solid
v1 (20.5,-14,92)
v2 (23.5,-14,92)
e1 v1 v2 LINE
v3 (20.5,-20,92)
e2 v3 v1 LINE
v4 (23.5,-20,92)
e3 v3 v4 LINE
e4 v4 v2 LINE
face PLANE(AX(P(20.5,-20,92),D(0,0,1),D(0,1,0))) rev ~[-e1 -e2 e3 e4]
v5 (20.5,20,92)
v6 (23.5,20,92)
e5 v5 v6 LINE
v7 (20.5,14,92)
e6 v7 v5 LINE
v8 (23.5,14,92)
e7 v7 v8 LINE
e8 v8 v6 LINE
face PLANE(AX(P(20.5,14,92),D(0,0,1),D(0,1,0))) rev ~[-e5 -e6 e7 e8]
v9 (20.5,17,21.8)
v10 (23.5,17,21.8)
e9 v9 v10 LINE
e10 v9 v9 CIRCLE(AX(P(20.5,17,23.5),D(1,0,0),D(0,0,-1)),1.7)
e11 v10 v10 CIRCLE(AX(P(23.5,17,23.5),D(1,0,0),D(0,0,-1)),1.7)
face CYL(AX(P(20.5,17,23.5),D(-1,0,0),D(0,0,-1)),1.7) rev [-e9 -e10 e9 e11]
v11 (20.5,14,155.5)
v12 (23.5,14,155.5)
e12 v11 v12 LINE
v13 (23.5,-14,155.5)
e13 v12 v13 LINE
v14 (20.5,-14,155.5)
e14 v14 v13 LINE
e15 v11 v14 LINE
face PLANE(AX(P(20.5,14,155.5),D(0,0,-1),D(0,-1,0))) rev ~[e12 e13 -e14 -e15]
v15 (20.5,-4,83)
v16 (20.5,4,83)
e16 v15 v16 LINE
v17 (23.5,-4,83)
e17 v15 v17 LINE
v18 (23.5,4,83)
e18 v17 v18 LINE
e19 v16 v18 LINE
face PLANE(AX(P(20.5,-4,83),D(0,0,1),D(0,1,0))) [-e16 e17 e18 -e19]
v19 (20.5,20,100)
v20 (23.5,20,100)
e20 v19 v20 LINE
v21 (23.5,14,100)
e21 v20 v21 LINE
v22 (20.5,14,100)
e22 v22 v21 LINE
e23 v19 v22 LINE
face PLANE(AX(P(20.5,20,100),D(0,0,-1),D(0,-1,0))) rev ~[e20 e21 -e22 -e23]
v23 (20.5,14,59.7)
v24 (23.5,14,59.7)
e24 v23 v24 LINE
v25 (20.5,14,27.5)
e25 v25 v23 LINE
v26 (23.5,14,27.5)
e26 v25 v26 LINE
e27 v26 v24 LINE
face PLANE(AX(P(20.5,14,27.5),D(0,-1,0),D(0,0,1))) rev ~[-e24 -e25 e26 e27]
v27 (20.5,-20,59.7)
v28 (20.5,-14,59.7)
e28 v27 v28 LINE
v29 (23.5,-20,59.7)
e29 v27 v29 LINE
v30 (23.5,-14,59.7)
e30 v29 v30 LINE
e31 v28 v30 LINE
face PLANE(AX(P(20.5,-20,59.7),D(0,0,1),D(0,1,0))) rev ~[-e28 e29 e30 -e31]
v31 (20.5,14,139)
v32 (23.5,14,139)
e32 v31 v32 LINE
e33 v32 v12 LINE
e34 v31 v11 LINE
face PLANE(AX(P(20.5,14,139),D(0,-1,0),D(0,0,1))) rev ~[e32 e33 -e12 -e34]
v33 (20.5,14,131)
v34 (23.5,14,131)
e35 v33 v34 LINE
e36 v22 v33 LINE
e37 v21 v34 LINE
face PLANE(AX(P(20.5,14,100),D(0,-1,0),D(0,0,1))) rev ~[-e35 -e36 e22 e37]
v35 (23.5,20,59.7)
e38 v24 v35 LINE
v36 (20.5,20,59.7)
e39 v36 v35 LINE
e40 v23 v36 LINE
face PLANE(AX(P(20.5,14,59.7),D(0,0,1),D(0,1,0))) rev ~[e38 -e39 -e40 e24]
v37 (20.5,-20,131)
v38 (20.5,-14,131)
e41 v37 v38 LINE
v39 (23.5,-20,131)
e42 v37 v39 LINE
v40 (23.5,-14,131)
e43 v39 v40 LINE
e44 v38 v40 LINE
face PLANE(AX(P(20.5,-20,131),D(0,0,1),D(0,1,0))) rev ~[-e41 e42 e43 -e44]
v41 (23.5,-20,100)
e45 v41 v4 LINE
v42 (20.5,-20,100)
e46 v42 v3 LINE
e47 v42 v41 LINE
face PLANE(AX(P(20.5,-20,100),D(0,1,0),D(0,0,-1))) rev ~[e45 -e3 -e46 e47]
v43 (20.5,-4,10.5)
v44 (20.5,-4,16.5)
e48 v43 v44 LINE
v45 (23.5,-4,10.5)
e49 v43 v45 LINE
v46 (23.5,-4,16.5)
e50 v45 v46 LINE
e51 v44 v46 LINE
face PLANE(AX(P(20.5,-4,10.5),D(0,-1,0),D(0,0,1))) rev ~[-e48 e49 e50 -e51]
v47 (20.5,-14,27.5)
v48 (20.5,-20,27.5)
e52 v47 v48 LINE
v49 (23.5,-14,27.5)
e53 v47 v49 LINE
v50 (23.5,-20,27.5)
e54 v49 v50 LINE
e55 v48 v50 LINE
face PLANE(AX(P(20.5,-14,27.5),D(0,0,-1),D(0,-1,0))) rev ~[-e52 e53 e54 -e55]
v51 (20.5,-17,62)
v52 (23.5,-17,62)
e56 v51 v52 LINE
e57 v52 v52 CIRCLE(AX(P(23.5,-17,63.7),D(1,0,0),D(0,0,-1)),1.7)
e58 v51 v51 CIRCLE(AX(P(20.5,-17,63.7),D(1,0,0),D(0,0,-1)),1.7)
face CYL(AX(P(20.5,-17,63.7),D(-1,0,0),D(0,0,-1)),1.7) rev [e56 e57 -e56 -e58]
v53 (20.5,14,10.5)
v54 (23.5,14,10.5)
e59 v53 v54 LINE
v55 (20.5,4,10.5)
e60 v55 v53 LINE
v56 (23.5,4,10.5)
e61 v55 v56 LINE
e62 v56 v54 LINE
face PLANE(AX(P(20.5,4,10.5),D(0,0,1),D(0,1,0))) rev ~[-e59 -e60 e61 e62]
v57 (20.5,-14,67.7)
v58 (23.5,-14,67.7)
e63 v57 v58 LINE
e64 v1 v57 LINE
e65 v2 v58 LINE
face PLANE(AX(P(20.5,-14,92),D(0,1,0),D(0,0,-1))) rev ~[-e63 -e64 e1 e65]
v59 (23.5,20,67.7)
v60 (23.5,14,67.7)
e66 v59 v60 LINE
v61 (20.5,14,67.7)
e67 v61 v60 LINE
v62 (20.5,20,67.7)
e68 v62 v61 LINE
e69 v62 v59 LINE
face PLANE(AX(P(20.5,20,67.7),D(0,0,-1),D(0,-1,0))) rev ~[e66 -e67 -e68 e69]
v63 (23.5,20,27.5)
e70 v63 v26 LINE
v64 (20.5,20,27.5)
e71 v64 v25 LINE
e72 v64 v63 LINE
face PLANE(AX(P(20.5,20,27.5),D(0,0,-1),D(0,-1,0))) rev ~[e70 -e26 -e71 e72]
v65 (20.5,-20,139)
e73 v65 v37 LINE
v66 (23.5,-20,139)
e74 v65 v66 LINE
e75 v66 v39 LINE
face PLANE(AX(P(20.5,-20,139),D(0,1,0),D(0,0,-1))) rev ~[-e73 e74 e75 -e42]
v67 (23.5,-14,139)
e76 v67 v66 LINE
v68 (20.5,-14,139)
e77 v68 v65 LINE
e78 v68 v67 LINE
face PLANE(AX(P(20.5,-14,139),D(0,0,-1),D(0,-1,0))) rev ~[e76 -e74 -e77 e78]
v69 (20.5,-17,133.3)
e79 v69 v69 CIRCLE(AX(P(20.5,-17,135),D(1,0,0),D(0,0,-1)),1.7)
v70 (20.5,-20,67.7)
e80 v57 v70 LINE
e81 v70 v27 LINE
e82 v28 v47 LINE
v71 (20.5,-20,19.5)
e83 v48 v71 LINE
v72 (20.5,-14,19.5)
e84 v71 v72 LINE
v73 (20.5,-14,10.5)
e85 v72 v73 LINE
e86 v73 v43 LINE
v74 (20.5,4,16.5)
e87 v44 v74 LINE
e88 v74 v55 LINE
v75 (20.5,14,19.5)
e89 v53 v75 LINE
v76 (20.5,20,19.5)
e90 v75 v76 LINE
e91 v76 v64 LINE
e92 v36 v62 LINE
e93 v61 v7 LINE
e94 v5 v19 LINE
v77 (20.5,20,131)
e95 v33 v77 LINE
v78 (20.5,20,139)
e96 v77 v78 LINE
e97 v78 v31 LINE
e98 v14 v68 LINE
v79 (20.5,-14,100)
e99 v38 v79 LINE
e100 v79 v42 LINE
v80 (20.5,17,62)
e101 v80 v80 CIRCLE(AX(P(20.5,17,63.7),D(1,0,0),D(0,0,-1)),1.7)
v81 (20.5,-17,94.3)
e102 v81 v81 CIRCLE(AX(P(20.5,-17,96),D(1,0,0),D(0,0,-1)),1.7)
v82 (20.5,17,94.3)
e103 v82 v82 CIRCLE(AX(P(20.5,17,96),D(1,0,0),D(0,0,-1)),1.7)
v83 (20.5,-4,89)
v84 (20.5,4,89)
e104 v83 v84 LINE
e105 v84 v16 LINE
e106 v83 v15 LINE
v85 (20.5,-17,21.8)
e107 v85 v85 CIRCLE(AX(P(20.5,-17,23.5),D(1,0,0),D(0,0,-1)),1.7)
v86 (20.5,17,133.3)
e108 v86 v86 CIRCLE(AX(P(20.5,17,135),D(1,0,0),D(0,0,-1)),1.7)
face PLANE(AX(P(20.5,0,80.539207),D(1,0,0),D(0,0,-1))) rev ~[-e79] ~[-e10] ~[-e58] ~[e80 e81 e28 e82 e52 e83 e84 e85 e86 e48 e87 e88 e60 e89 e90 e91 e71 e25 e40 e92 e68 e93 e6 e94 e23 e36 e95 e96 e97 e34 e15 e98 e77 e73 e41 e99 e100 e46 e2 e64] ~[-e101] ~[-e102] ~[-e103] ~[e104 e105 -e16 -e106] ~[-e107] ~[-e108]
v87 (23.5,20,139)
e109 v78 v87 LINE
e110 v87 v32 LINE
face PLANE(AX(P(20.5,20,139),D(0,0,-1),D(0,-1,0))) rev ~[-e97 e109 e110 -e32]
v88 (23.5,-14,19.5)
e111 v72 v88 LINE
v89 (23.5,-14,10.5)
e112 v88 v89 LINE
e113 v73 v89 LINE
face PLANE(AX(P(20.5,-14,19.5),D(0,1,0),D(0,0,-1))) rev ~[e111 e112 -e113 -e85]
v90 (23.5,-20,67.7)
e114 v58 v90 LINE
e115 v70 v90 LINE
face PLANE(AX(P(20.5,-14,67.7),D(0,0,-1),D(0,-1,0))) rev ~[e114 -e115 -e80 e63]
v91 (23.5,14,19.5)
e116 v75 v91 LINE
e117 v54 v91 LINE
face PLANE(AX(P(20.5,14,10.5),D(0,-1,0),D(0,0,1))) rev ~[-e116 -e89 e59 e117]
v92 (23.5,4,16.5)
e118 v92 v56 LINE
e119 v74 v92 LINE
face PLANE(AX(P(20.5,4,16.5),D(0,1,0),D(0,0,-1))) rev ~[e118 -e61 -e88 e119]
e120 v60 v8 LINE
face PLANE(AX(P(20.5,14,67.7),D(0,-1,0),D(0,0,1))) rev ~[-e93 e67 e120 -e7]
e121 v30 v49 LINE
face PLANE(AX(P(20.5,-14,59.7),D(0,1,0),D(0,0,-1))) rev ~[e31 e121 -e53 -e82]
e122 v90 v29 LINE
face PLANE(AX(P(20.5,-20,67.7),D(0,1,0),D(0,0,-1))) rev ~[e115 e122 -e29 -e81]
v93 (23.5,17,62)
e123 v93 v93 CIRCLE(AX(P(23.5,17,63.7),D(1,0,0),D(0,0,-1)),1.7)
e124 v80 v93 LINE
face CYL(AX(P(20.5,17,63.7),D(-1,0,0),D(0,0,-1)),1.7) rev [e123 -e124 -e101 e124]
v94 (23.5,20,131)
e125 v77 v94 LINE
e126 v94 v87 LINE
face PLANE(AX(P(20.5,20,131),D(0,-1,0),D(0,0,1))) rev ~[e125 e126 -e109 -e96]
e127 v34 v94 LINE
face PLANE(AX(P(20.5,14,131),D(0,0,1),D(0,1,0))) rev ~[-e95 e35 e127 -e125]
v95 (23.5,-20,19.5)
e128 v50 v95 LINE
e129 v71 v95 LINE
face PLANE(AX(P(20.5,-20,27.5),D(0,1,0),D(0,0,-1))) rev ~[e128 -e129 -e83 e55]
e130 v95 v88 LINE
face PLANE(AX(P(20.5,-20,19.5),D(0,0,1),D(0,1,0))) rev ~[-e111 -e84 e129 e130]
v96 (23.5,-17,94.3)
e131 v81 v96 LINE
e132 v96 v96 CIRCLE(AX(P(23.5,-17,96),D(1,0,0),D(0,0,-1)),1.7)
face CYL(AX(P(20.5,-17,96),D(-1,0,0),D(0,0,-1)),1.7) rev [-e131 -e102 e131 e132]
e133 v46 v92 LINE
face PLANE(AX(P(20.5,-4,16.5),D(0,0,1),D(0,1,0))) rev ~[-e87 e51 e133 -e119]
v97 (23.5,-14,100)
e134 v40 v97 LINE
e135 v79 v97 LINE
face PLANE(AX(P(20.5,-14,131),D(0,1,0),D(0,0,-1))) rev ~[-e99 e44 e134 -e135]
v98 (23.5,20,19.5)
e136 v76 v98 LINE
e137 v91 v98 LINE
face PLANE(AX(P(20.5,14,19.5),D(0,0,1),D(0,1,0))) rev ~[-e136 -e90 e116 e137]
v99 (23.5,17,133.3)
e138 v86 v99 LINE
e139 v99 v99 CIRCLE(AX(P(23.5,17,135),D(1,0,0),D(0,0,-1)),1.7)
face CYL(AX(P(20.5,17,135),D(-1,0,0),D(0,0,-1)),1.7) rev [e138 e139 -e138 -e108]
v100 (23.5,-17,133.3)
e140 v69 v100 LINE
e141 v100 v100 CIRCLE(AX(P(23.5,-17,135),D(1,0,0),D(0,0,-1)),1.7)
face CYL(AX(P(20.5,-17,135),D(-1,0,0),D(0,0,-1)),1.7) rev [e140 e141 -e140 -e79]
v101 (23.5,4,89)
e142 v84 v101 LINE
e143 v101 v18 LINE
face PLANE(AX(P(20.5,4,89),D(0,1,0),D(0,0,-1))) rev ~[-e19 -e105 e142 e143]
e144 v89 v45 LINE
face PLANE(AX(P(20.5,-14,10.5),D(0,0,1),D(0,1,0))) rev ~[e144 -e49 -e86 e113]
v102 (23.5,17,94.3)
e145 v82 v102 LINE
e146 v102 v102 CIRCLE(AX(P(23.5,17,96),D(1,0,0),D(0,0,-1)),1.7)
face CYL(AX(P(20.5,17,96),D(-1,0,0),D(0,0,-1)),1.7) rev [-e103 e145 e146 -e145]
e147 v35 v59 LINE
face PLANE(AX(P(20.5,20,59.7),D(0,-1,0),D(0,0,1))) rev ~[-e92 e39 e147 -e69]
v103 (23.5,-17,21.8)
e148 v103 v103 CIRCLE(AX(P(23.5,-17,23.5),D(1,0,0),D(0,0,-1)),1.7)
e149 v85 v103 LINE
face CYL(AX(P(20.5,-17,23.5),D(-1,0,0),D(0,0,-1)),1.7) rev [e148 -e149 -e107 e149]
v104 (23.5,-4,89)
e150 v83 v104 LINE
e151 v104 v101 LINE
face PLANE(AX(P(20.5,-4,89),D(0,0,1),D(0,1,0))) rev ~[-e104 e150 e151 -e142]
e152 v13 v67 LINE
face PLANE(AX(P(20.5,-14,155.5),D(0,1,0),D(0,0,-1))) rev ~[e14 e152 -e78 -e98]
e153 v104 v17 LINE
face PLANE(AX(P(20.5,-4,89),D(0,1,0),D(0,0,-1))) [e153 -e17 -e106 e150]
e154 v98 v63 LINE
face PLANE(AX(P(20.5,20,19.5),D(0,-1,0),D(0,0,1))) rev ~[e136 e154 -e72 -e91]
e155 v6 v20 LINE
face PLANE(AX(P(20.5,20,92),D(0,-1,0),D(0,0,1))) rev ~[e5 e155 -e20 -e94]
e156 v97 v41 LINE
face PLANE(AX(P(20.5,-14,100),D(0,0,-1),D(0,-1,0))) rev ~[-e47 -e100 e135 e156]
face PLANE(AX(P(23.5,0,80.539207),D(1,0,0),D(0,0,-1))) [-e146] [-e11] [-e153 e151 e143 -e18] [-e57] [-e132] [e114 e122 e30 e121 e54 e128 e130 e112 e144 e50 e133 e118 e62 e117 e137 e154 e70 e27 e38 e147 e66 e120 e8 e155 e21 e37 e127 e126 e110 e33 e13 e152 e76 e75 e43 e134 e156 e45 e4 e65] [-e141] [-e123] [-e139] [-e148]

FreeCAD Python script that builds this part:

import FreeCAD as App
import Part
import Sketcher
from FreeCAD import Vector
Q = App.Units.Quantity

doc = App.newDocument("Part")
params = doc.addObject("Spreadsheet::Sheet", "Params")
for row, (alias, value) in enumerate([
    ("sketch1_diameter", "3.4 mm"),
    ("sketch1_width", "6 mm"),
    ("sketch1_width2", "28 mm"),
    ("sketch1_width3", "10 mm"),
    ("sketch1_height", "9 mm"),
    ("pad1_length", "3 mm"),
], start=1):
    params.set(f"A{row}", alias)
    params.set(f"B{row}", "=" + value)
    params.setAlias(f"B{row}", alias)

body = doc.addObject("PartDesign::Body", "Body")

# Sketch on YZ plane
sketch1 = body.newObject("Sketcher::SketchObject", "Sketch")
sketch1.AttachmentSupport = (doc.getObject("YZ_Plane"), [""])
sketch1.MapMode = "FlatFace"
sketch1.AttachmentOffset = App.Placement(Vector(0, 0, 20.5), App.Rotation())
sketch1.addGeometry([
    Part.LineSegment(Vector(14, 10.5, 0), Vector(14, 19.5, 0)),  # 0
    Part.LineSegment(Vector(14, 19.5, 0), Vector(20, 19.5, 0)),  # 1
    Part.LineSegment(Vector(20, 19.5, 0), Vector(20, 27.5, 0)),  # 2
    Part.LineSegment(Vector(20, 27.5, 0), Vector(14, 27.5, 0)),  # 3
    Part.LineSegment(Vector(14, 27.5, 0), Vector(14, 59.7, 0)),  # 4
    Part.LineSegment(Vector(14, 59.7, 0), Vector(20, 59.7, 0)),  # 5
    Part.LineSegment(Vector(20, 59.7, 0), Vector(20, 67.7, 0)),  # 6
    Part.LineSegment(Vector(20, 67.7, 0), Vector(14, 67.7, 0)),  # 7
    Part.LineSegment(Vector(14, 67.7, 0), Vector(14, 92, 0)),  # 8
    Part.LineSegment(Vector(14, 92, 0), Vector(20, 92, 0)),  # 9
    Part.LineSegment(Vector(20, 92, 0), Vector(20, 100, 0)),  # 10
    Part.LineSegment(Vector(20, 100, 0), Vector(14, 100, 0)),  # 11
    Part.LineSegment(Vector(14, 100, 0), Vector(14, 131, 0)),  # 12
    Part.LineSegment(Vector(14, 131, 0), Vector(20, 131, 0)),  # 13
    Part.LineSegment(Vector(20, 131, 0), Vector(20, 139, 0)),  # 14
    Part.LineSegment(Vector(20, 139, 0), Vector(14, 139, 0)),  # 15
    Part.LineSegment(Vector(14, 139, 0), Vector(14, 155.5, 0)),  # 16
    Part.LineSegment(Vector(14, 155.5, 0), Vector(-14, 155.5, 0)),  # 17
    Part.LineSegment(Vector(-14, 155.5, 0), Vector(-14, 139, 0)),  # 18
    Part.LineSegment(Vector(-14, 139, 0), Vector(-20, 139, 0)),  # 19
    Part.LineSegment(Vector(-20, 139, 0), Vector(-20, 131, 0)),  # 20
    Part.LineSegment(Vector(-20, 131, 0), Vector(-14, 131, 0)),  # 21
    Part.LineSegment(Vector(-14, 131, 0), Vector(-14, 100, 0)),  # 22
    Part.LineSegment(Vector(-14, 100, 0), Vector(-20, 100, 0)),  # 23
    Part.LineSegment(Vector(-20, 100, 0), Vector(-20, 92, 0)),  # 24
    Part.LineSegment(Vector(-20, 92, 0), Vector(-14, 92, 0)),  # 25
    Part.LineSegment(Vector(-14, 92, 0), Vector(-14, 67.7, 0)),  # 26
    Part.LineSegment(Vector(-14, 67.7, 0), Vector(-20, 67.7, 0)),  # 27
    Part.LineSegment(Vector(-20, 67.7, 0), Vector(-20, 59.7, 0)),  # 28
    Part.LineSegment(Vector(-20, 59.7, 0), Vector(-14, 59.7, 0)),  # 29
    Part.LineSegment(Vector(-14, 59.7, 0), Vector(-14, 27.5, 0)),  # 30
    Part.LineSegment(Vector(-14, 27.5, 0), Vector(-20, 27.5, 0)),  # 31
    Part.LineSegment(Vector(-20, 27.5, 0), Vector(-20, 19.5, 0)),  # 32
    Part.LineSegment(Vector(-20, 19.5, 0), Vector(-14, 19.5, 0)),  # 33
    Part.LineSegment(Vector(-14, 19.5, 0), Vector(-14, 10.5, 0)),  # 34
    Part.LineSegment(Vector(-14, 10.5, 0), Vector(-4, 10.5, 0)),  # 35
    Part.LineSegment(Vector(-4, 10.5, 0), Vector(-4, 16.5, 0)),  # 36
    Part.LineSegment(Vector(-4, 16.5, 0), Vector(4, 16.5, 0)),  # 37
    Part.LineSegment(Vector(4, 16.5, 0), Vector(4, 10.5, 0)),  # 38
    Part.LineSegment(Vector(4, 10.5, 0), Vector(14, 10.5, 0)),  # 39
    Part.Circle(Vector(-17, 135, 0), Vector(0, 0, 1), 1.7),  # 40
    Part.Circle(Vector(-17, 96, 0), Vector(0, 0, 1), 1.7),  # 41
    Part.Circle(Vector(-17, 63.7, 0), Vector(0, 0, 1), 1.7),  # 42
    Part.Circle(Vector(-17, 23.5, 0), Vector(0, 0, 1), 1.7),  # 43
    Part.LineSegment(Vector(-4, 83, 0), Vector(-4, 89, 0)),  # 44
    Part.LineSegment(Vector(-4, 89, 0), Vector(4, 89, 0)),  # 45
    Part.LineSegment(Vector(4, 89, 0), Vector(4, 83, 0)),  # 46
    Part.LineSegment(Vector(4, 83, 0), Vector(-4, 83, 0)),  # 47
    Part.Circle(Vector(17, 135, 0), Vector(0, 0, 1), 1.7),  # 48
    Part.Circle(Vector(17, 96, 0), Vector(0, 0, 1), 1.7),  # 49
    Part.Circle(Vector(17, 63.7, 0), Vector(0, 0, 1), 1.7),  # 50
    Part.Circle(Vector(17, 23.5, 0), Vector(0, 0, 1), 1.7),  # 51
], False)
sketch1.addConstraint([
    Sketcher.Constraint("Coincident", 0, 2, 1, 1),
    Sketcher.Constraint("Coincident", 1, 2, 2, 1),
    Sketcher.Constraint("Coincident", 2, 2, 3, 1),
    Sketcher.Constraint("Coincident", 3, 2, 4, 1),
    Sketcher.Constraint("Coincident", 4, 2, 5, 1),
    Sketcher.Constraint("Coincident", 5, 2, 6, 1),
    Sketcher.Constraint("Coincident", 6, 2, 7, 1),
    Sketcher.Constraint("Coincident", 7, 2, 8, 1),
    Sketcher.Constraint("Coincident", 8, 2, 9, 1),
    Sketcher.Constraint("Coincident", 9, 2, 10, 1),
    Sketcher.Constraint("Coincident", 10, 2, 11, 1),
    Sketcher.Constraint("Coincident", 11, 2, 12, 1),
    Sketcher.Constraint("Coincident", 12, 2, 13, 1),
    Sketcher.Constraint("Coincident", 13, 2, 14, 1),
    Sketcher.Constraint("Coincident", 14, 2, 15, 1),
    Sketcher.Constraint("Coincident", 15, 2, 16, 1),
    Sketcher.Constraint("Coincident", 16, 2, 17, 1),
    Sketcher.Constraint("Coincident", 17, 2, 18, 1),
    Sketcher.Constraint("Coincident", 18, 2, 19, 1),
    Sketcher.Constraint("Coincident", 19, 2, 20, 1),
    Sketcher.Constraint("Coincident", 20, 2, 21, 1),
    Sketcher.Constraint("Coincident", 21, 2, 22, 1),
    Sketcher.Constraint("Coincident", 22, 2, 23, 1),
    Sketcher.Constraint("Coincident", 23, 2, 24, 1),
    Sketcher.Constraint("Coincident", 24, 2, 25, 1),
    Sketcher.Constraint("Coincident", 25, 2, 26, 1),
    Sketcher.Constraint("Coincident", 26, 2, 27, 1),
    Sketcher.Constraint("Coincident", 27, 2, 28, 1),
    Sketcher.Constraint("Coincident", 28, 2, 29, 1),
    Sketcher.Constraint("Coincident", 29, 2, 30, 1),
    Sketcher.Constraint("Coincident", 30, 2, 31, 1),
    Sketcher.Constraint("Coincident", 31, 2, 32, 1),
    Sketcher.Constraint("Coincident", 32, 2, 33, 1),
    Sketcher.Constraint("Coincident", 33, 2, 34, 1),
    Sketcher.Constraint("Coincident", 34, 2, 35, 1),
    Sketcher.Constraint("Coincident", 35, 2, 36, 1),
    Sketcher.Constraint("Coincident", 36, 2, 37, 1),
    Sketcher.Constraint("Coincident", 37, 2, 38, 1),
    Sketcher.Constraint("Coincident", 38, 2, 39, 1),
    Sketcher.Constraint("Coincident", 39, 2, 0, 1),
    Sketcher.Constraint("Coincident", 44, 2, 45, 1),
    Sketcher.Constraint("Coincident", 45, 2, 46, 1),
    Sketcher.Constraint("Coincident", 46, 2, 47, 1),
    Sketcher.Constraint("Coincident", 47, 2, 44, 1),
    Sketcher.Constraint("Vertical", 0),
    Sketcher.Constraint("Horizontal", 1),
    Sketcher.Constraint("Vertical", 2),
    Sketcher.Constraint("Horizontal", 3),
    Sketcher.Constraint("Vertical", 4),
    Sketcher.Constraint("Horizontal", 5),
    Sketcher.Constraint("Vertical", 6),
    Sketcher.Constraint("Horizontal", 7),
    Sketcher.Constraint("Vertical", 8),
    Sketcher.Constraint("Horizontal", 9),
    Sketcher.Constraint("Vertical", 10),
    Sketcher.Constraint("Horizontal", 11),
    Sketcher.Constraint("Vertical", 12),
    Sketcher.Constraint("Horizontal", 13),
    Sketcher.Constraint("Vertical", 14),
    Sketcher.Constraint("Horizontal", 15),
    Sketcher.Constraint("Vertical", 16),
    Sketcher.Constraint("Horizontal", 17),
    Sketcher.Constraint("Vertical", 18),
    Sketcher.Constraint("Horizontal", 19),
    Sketcher.Constraint("Vertical", 20),
    Sketcher.Constraint("Horizontal", 21),
    Sketcher.Constraint("Vertical", 22),
    Sketcher.Constraint("Horizontal", 23),
    Sketcher.Constraint("Vertical", 24),
    Sketcher.Constraint("Horizontal", 25),
    Sketcher.Constraint("Vertical", 26),
    Sketcher.Constraint("Horizontal", 27),
    Sketcher.Constraint("Vertical", 28),
    Sketcher.Constraint("Horizontal", 29),
    Sketcher.Constraint("Vertical", 30),
    Sketcher.Constraint("Horizontal", 31),
    Sketcher.Constraint("Vertical", 32),
    Sketcher.Constraint("Horizontal", 33),
    Sketcher.Constraint("Vertical", 34),
    Sketcher.Constraint("Horizontal", 35),
    Sketcher.Constraint("Vertical", 36),
    Sketcher.Constraint("Horizontal", 37),
    Sketcher.Constraint("Vertical", 38),
    Sketcher.Constraint("Horizontal", 39),
    Sketcher.Constraint("Vertical", 44),
    Sketcher.Constraint("Horizontal", 45),
    Sketcher.Constraint("Vertical", 46),
    Sketcher.Constraint("Horizontal", 47),
    Sketcher.Constraint("Equal", 40, 41),
    Sketcher.Constraint("Equal", 41, 42),
    Sketcher.Constraint("Equal", 42, 43),
    Sketcher.Constraint("Equal", 43, 48),
    Sketcher.Constraint("Equal", 48, 49),
    Sketcher.Constraint("Equal", 49, 50),
    Sketcher.Constraint("Equal", 50, 51),
    Sketcher.Constraint("Symmetric", 40, 3, 48, 3, -2),
    Sketcher.Constraint("Symmetric", 41, 3, 49, 3, -2),
    Sketcher.Constraint("Symmetric", 42, 3, 50, 3, -2),
    Sketcher.Constraint("Symmetric", 43, 3, 51, 3, -2),
    Sketcher.Constraint("Symmetric", 15, 2, 18, 2, -2),
    Sketcher.Constraint("Symmetric", 13, 2, 20, 2, -2),
    Sketcher.Constraint("Symmetric", 11, 2, 22, 2, -2),
    Sketcher.Constraint("Symmetric", 9, 2, 24, 2, -2),
    Sketcher.Constraint("Symmetric", 7, 2, 26, 2, -2),
    Sketcher.Constraint("Symmetric", 5, 2, 28, 2, -2),
    Sketcher.Constraint("Symmetric", 3, 2, 30, 2, -2),
    Sketcher.Constraint("Symmetric", 1, 2, 32, 2, -2),
    Sketcher.Constraint("Symmetric", 35, 2, 38, 2, -2),
    Sketcher.Constraint("Vertical", 40, 3, 41, 3),
    Sketcher.Constraint("Vertical", 41, 3, 42, 3),
    Sketcher.Constraint("Vertical", 42, 3, 43, 3),
    Sketcher.Constraint("Vertical", 0, 2, 3, 2),
    Sketcher.Constraint("Vertical", 2, 2, 5, 2),
    Sketcher.Constraint("Vertical", 4, 2, 7, 2),
    Sketcher.Constraint("Vertical", 6, 2, 9, 2),
    Sketcher.Constraint("Vertical", 8, 2, 11, 2),
    Sketcher.Constraint("Vertical", 10, 2, 13, 2),
    Sketcher.Constraint("Vertical", 12, 2, 15, 2),
    Sketcher.Constraint("Vertical", 30, 2, 33, 2),
    Sketcher.Constraint("Vertical", 36, 2, 44, 2),
    Sketcher.Constraint("Vertical", 38, 2, 45, 2),
    Sketcher.Constraint("Equal", 47, 2),
    Sketcher.Constraint("Equal", 2, 6),
    Sketcher.Constraint("Equal", 6, 10),
    Sketcher.Constraint("Equal", 10, 14),
    Sketcher.Constraint("Equal", 33, 36),
    Sketcher.Constraint("Equal", 38, 44),
    Sketcher.Constraint("Diameter", 40, Q("3.4 mm")),
    Sketcher.Constraint("DistanceX", 1, 1, 1, 2, Q("6 mm")),
    Sketcher.Constraint("DistanceX", 17, 2, 17, 1, Q("28 mm")),
    Sketcher.Constraint("DistanceX", 35, 1, 35, 2, Q("10 mm")),
    Sketcher.Constraint("DistanceY", 0, 1, 0, 2, Q("9 mm")),
    Sketcher.Constraint("DistanceY", 12, 1, 12, 2, Q("31 mm")),
    Sketcher.Constraint("DistanceY", 4, 1, 4, 2, Q("32.2 mm")),
    Sketcher.Constraint("DistanceY", 8, 1, 8, 2, Q("24.3 mm")),
    Sketcher.Constraint("DistanceY", 16, 1, 16, 2, Q("16.5 mm")),
    Sketcher.Constraint("DistanceX", 40, 3, -1, 1, Q("17 mm")),
    Sketcher.Constraint("DistanceY", -1, 1, 40, 3, Q("135 mm")),
    Sketcher.Constraint("DistanceY", -1, 1, 41, 3, Q("96 mm")),
    Sketcher.Constraint("DistanceY", -1, 1, 8, 2, Q("92 mm")),
    Sketcher.Constraint("DistanceY", -1, 1, 44, 2, Q("89 mm")),
    Sketcher.Constraint("DistanceY", 0, 2, 51, 3, Q("4 mm")),
    Sketcher.Constraint("DistanceY", 4, 2, 50, 3, Q("4 mm")),
])
sketch1.setExpression("Constraints[127]", "Params.sketch1_diameter")
sketch1.setExpression("Constraints[128]", "Params.sketch1_width")
sketch1.setExpression("Constraints[129]", "Params.sketch1_width2")
sketch1.setExpression("Constraints[130]", "Params.sketch1_width3")
sketch1.setExpression("Constraints[131]", "Params.sketch1_height")
pad1 = body.newObject("PartDesign::Pad", "Pad")
pad1.Profile = sketch1
pad1.setExpression("Length", "Params.pad1_length")

doc.recompute()
